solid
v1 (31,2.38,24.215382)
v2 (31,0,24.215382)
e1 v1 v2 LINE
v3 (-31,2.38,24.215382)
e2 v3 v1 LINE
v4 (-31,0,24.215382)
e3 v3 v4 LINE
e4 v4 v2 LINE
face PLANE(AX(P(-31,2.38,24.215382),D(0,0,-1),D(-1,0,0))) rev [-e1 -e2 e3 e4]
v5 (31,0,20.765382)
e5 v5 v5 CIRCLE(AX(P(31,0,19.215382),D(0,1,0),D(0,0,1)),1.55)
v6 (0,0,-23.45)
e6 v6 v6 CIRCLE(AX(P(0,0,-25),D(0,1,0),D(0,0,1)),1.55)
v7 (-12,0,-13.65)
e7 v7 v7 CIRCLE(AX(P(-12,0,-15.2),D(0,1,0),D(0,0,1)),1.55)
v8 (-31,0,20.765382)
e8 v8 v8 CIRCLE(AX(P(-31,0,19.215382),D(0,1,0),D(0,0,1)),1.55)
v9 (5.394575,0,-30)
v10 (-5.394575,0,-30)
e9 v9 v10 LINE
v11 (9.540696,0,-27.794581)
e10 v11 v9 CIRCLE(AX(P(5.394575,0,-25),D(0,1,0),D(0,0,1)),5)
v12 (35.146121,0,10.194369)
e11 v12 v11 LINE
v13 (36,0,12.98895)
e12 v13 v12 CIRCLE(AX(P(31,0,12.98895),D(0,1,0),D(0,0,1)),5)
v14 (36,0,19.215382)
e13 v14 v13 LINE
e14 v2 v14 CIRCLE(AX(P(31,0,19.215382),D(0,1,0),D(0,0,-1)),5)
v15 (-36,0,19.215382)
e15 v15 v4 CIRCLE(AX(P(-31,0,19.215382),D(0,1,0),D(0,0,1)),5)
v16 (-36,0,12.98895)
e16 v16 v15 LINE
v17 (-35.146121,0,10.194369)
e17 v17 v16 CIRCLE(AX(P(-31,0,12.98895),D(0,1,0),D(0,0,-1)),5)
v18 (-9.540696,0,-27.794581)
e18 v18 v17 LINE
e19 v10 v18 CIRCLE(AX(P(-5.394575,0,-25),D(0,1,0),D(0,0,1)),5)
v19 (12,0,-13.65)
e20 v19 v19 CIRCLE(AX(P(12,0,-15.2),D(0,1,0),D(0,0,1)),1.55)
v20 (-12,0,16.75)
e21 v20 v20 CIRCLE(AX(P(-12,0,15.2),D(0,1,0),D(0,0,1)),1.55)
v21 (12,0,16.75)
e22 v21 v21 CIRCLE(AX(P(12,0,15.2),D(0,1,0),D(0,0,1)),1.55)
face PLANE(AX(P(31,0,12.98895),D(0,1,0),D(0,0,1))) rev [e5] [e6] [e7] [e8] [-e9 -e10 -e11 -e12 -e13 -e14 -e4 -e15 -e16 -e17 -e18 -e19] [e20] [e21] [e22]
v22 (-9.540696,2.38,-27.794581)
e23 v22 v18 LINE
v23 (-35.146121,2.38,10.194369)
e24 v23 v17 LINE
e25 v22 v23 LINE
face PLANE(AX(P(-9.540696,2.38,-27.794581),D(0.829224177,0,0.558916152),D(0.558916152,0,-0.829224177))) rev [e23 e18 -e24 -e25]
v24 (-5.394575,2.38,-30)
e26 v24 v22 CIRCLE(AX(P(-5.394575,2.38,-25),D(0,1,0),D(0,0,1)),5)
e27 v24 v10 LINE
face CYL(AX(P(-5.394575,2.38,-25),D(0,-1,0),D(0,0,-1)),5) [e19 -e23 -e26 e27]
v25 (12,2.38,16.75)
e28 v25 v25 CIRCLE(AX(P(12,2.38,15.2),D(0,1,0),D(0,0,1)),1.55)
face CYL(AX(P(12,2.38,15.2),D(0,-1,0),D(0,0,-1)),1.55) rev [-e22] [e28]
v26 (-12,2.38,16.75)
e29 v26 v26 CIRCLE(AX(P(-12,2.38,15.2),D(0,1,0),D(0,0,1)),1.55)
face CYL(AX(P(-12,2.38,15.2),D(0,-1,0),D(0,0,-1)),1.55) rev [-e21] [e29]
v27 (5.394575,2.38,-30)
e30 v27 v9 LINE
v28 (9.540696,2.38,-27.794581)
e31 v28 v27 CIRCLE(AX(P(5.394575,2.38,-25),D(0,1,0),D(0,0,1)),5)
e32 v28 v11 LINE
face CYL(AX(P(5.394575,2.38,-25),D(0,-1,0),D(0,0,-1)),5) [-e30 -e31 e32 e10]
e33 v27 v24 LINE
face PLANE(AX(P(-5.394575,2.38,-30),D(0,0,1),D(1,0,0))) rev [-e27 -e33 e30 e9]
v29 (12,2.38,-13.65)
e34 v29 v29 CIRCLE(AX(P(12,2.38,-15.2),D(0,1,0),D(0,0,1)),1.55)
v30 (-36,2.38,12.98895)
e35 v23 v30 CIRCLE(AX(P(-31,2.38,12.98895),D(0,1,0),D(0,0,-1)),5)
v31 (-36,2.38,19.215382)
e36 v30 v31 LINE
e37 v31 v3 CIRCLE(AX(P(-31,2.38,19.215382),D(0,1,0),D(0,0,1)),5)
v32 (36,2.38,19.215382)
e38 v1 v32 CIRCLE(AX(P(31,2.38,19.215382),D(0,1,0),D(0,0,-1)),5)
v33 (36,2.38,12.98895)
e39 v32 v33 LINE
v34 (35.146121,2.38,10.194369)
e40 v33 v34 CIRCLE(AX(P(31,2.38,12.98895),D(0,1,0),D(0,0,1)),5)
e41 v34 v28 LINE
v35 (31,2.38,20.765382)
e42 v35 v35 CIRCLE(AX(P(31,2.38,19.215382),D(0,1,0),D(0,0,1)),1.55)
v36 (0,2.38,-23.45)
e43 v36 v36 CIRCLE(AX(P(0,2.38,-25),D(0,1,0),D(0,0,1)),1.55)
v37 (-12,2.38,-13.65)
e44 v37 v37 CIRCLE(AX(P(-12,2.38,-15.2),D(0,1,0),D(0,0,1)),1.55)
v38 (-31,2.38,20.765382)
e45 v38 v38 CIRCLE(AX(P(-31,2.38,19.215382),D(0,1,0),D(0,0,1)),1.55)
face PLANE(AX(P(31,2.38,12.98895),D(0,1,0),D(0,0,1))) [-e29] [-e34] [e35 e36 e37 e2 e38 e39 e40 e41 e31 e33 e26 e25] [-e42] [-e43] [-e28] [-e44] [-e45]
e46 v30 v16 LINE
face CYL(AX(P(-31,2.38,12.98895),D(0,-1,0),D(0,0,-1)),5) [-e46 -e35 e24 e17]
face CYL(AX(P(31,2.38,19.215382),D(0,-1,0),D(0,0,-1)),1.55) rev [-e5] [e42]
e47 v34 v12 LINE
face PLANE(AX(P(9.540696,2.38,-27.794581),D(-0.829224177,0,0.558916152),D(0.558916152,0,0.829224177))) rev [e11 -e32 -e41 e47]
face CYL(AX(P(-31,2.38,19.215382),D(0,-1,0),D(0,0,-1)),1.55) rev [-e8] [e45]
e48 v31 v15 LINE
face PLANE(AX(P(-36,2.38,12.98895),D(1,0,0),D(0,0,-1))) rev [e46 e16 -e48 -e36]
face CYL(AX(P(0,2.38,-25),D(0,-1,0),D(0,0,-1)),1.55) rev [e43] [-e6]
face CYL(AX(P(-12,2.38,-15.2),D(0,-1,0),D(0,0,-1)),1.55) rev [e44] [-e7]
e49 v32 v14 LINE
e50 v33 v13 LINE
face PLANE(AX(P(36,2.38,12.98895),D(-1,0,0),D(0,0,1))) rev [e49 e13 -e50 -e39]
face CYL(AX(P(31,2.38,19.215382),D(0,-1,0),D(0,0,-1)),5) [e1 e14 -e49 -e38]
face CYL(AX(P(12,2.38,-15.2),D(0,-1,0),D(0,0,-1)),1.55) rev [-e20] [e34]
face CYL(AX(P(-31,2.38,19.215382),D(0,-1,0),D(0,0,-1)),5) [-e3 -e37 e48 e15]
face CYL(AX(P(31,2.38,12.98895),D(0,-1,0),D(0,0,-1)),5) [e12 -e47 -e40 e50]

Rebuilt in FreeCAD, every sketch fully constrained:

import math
import FreeCAD as App
import Part
import Sketcher
from FreeCAD import Vector
Q = App.Units.Quantity

doc = App.newDocument("Part")
body = doc.addObject("PartDesign::Body", "Body")

sketch1 = body.newObject("Sketcher::SketchObject", "Sketch")
sketch1.AttachmentSupport = (doc.getObject("XZ_Plane"), [""])
sketch1.MapMode = "FlatFace"
sketch1.addGeometry([
    Part.LineSegment(Vector(5.394575, -30, 0), Vector(-5.394575, -30, 0)),
    Part.ArcOfCircle(Part.Circle(Vector(-5.394575, -25, 0), Vector(0, 0, 1), 5), math.radians(-146.019124), math.radians(-90)),
    Part.LineSegment(Vector(-9.540696, -27.794581, 0), Vector(-35.146121, 10.194369, 0)),
    Part.ArcOfCircle(Part.Circle(Vector(-31, 12.98895, 0), Vector(0, 0, 1), 5), math.radians(180), math.radians(213.980876)),
    Part.LineSegment(Vector(-36, 12.98895, 0), Vector(-36, 19.215382, 0)),
    Part.ArcOfCircle(Part.Circle(Vector(-31, 19.215382, 0), Vector(0, 0, 1), 5), math.radians(90), math.radians(180)),
    Part.LineSegment(Vector(-31, 24.215382, 0), Vector(31, 24.215382, 0)),
    Part.ArcOfCircle(Part.Circle(Vector(31, 19.215382, 0), Vector(0, 0, 1), 5), math.radians(0), math.radians(90)),
    Part.LineSegment(Vector(36, 19.215382, 0), Vector(36, 12.98895, 0)),
    Part.ArcOfCircle(Part.Circle(Vector(31, 12.98895, 0), Vector(0, 0, 1), 5), math.radians(-33.980876), math.radians(0)),
    Part.LineSegment(Vector(35.146121, 10.194369, 0), Vector(9.540696, -27.794581, 0)),
    Part.ArcOfCircle(Part.Circle(Vector(5.394575, -25, 0), Vector(0, 0, 1), 5), math.radians(-90), math.radians(-33.980876)),
    Part.Circle(Vector(31, 19.215382, 0), Vector(0, 0, 1), 1.55),
    Part.Circle(Vector(12, 15.2, 0), Vector(0, 0, 1), 1.55),
    Part.Circle(Vector(-12, 15.2, 0), Vector(0, 0, 1), 1.55),
    Part.Circle(Vector(-31, 19.215382, 0), Vector(0, 0, 1), 1.55),
    Part.Circle(Vector(12, -15.2, 0), Vector(0, 0, 1), 1.55),
    Part.Circle(Vector(-12, -15.2, 0), Vector(0, 0, 1), 1.55),
    Part.Circle(Vector(0, -25, 0), Vector(0, 0, 1), 1.55),
], False)
sketch1.addConstraint([
    Sketcher.Constraint("Tangent", 0, 2, 1, 2),
    Sketcher.Constraint("Tangent", 1, 1, 2, 1),
    Sketcher.Constraint("Tangent", 2, 2, 3, 2),
    Sketcher.Constraint("Tangent", 3, 1, 4, 1),
    Sketcher.Constraint("Tangent", 4, 2, 5, 2),
    Sketcher.Constraint("Tangent", 5, 1, 6, 1),
    Sketcher.Constraint("Tangent", 6, 2, 7, 2),
    Sketcher.Constraint("Tangent", 7, 1, 8, 1),
    Sketcher.Constraint("Tangent", 8, 2, 9, 2),
    Sketcher.Constraint("Tangent", 9, 1, 10, 1),
    Sketcher.Constraint("Tangent", 10, 2, 11, 2),
    Sketcher.Constraint("Tangent", 11, 1, 0, 1),
    Sketcher.Constraint("Horizontal", 0),
    Sketcher.Constraint("Vertical", 4),
    Sketcher.Constraint("Horizontal", 6),
    Sketcher.Constraint("Vertical", 8),
    Sketcher.Constraint("Coincident", 12, 3, 7, 3),
    Sketcher.Constraint("Coincident", 15, 3, 5, 3),
    Sketcher.Constraint("Equal", 1, 3),
    Sketcher.Constraint("Equal", 3, 5),
    Sketcher.Constraint("Equal", 5, 7),
    Sketcher.Constraint("Equal", 7, 9),
    Sketcher.Constraint("Equal", 9, 11),
    Sketcher.Constraint("Equal", 12, 13),
    Sketcher.Constraint("Equal", 13, 14),
    Sketcher.Constraint("Equal", 14, 15),
    Sketcher.Constraint("Equal", 15, 16),
    Sketcher.Constraint("Equal", 16, 17),
    Sketcher.Constraint("Equal", 17, 18),
    Sketcher.Constraint("Symmetric", 14, 3, 16, 3, -1, 1),
    Sketcher.Constraint("Symmetric", 13, 3, 17, 3, -1, 1),
    Sketcher.Constraint("Symmetric", 3, 3, 9, 3, -2),
    Sketcher.Constraint("Symmetric", 13, 3, 14, 3, -2),
    Sketcher.Constraint("PointOnObject", 18, 3, -2),
    Sketcher.Constraint("Horizontal", 11, 3, 18, 3),
    Sketcher.Constraint("Horizontal", 2, 2, 9, 1),
    Sketcher.Constraint("Radius", 1, Q("5 mm")),
    Sketcher.Constraint("Diameter", 12, Q("3.1 mm")),
    Sketcher.Constraint("DistanceX", 6, 1, 6, 2, Q("62 mm")),
    Sketcher.Constraint("DistanceY", 1, 3, -1, 1, Q("25 mm")),
    Sketcher.Constraint("DistanceX", -1, 1, 13, 3, Q("12 mm")),
    Sketcher.Constraint("DistanceY", -1, 1, 13, 3, Q("15.2 mm")),
    Sketcher.Constraint("DistanceX", 0, 2, 0, 1, Q("10.78915 mm")),
    Sketcher.Constraint("Distance", 2, Q("45.812641 mm")),
    Sketcher.Constraint("DistanceY", 4, 1, 4, 2, Q("6.226432 mm")),
])
pad1 = body.newObject("PartDesign::Pad", "Pad")
pad1.Profile = sketch1
pad1.Length = 2.38
pad1.Reversed = True

doc.recompute()
